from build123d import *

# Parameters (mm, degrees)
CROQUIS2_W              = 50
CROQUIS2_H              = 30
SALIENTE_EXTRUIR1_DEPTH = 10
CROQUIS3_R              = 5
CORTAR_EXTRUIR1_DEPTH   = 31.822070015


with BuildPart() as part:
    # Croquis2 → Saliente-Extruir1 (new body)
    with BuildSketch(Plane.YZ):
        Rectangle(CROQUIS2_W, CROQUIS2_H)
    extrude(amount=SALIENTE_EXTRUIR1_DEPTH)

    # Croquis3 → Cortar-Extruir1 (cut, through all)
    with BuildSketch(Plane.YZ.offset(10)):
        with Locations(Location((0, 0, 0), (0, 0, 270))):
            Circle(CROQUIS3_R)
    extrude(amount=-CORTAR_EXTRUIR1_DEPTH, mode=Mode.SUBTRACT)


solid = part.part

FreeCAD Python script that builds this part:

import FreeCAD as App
import Part
import Sketcher


def add_polygon(sketch, points):
    """Adds a closed chain of lines whose ends are joined by coincident constraints."""
    first, n = sketch.GeometryCount, len(points)
    for a, b in zip(points, points[1:] + points[:1]):
        sketch.addGeometry(Part.LineSegment(App.Vector(*a, 0), App.Vector(*b, 0)), False)
    for i in range(n):
        sketch.addConstraint(Sketcher.Constraint("Coincident", first + i, 2, first + (i + 1) % n, 1))

doc = App.newDocument("Part")
body = doc.addObject("PartDesign::Body", "Body")

# Sketch on YZ plane
sketch1 = doc.addObject("Sketcher::SketchObject", "Sketch")
body.addObject(sketch1)
sketch1.AttachmentSupport = (doc.YZ_Plane, [""])
sketch1.MapMode = "FlatFace"
add_polygon(sketch1, [(-25, 15), (-25, -15), (25, -15), (25, 15)])  # lines 0-3
sketch1.addConstraint([
    Sketcher.Constraint("Vertical", 0),
    Sketcher.Constraint("Horizontal", 1),
    Sketcher.Constraint("Vertical", 2),
    Sketcher.Constraint("Horizontal", 3),
    Sketcher.Constraint("Symmetric", 0, 2, 2, 2, -1, 1),
    Sketcher.Constraint("DistanceX", 1, 1, 1, 2, 50.0),
    Sketcher.Constraint("DistanceY", 0, 2, 0, 1, 30.0),
])
pad1 = doc.addObject("PartDesign::Pad", "Pad")
body.addObject(pad1)
pad1.Profile = sketch1
pad1.Length = 10

# Sketch on YZ plane
sketch2 = doc.addObject("Sketcher::SketchObject", "Sketch001")
body.addObject(sketch2)
sketch2.AttachmentSupport = (doc.YZ_Plane, [""])
sketch2.MapMode = "FlatFace"
sketch2.AttachmentOffset = App.Placement(App.Vector(0, 0, 10), App.Rotation())
sketch2.addGeometry(Part.Circle(App.Vector(0, 0, 0), App.Vector(0, 0, 1), 5), False)
sketch2.addConstraint([
    Sketcher.Constraint("Coincident", 0, 3, -1, 1),
    Sketcher.Constraint("Diameter", 0, 10.0),
])
pocket1 = doc.addObject("PartDesign::Pocket", "Pocket")
body.addObject(pocket1)
pocket1.Profile = sketch2
pocket1.Type = "ThroughAll"

doc.recompute()
